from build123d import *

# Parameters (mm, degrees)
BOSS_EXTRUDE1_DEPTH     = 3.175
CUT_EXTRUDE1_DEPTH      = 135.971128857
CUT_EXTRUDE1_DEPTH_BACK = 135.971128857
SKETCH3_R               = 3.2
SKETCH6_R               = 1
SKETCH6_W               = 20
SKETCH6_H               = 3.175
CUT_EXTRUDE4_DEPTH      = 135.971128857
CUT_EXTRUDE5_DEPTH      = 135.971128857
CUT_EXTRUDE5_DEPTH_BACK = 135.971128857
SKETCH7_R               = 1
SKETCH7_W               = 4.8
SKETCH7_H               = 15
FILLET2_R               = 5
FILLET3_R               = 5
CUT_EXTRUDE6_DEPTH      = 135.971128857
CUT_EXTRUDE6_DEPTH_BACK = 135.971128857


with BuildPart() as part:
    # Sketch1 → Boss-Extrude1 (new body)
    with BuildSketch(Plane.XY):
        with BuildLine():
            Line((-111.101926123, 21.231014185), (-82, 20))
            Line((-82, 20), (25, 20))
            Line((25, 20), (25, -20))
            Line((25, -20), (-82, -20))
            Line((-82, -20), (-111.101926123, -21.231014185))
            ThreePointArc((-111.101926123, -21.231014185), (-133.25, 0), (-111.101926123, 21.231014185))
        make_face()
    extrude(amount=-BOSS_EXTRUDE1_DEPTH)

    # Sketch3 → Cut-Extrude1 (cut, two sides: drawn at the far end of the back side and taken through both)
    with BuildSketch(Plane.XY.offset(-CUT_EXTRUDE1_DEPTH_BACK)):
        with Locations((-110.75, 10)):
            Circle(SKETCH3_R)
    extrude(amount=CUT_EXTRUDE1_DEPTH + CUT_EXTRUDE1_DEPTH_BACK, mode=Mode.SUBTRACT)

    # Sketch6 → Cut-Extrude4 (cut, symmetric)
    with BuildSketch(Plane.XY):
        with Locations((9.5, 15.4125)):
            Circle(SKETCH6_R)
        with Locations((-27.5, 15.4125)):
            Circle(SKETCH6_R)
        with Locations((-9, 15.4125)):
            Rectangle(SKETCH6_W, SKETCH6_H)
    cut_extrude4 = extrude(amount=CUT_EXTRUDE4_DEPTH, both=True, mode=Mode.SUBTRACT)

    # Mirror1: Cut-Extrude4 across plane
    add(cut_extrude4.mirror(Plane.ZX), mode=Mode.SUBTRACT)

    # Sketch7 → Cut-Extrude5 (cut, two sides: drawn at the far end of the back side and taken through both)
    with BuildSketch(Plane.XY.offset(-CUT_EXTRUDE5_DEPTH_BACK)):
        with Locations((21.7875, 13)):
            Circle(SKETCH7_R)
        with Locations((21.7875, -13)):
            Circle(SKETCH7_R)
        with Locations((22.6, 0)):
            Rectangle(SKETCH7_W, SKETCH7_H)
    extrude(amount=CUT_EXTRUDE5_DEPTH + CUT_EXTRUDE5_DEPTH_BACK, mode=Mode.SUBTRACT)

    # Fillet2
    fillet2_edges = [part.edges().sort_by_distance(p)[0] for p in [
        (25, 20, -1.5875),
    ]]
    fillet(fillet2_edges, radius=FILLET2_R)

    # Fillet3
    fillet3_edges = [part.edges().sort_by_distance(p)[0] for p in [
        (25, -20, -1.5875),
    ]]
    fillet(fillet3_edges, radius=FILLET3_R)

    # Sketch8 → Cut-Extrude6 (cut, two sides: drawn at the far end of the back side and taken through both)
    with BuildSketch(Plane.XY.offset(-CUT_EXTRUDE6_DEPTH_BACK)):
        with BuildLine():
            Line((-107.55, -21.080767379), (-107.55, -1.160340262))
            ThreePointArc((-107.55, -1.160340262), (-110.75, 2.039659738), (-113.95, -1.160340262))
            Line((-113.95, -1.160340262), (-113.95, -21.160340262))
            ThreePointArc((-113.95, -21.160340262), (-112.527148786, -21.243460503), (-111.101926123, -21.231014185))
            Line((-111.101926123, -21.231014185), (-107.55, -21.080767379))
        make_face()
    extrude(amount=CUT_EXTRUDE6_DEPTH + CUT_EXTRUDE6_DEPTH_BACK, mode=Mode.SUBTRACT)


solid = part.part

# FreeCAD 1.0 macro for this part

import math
import FreeCAD as App
import Part
import Sketcher


def edges_at(feature, points):
    """Names of the edges that pass closest to the given points."""
    edges = feature.Shape.Edges
    near = lambda p: min(range(len(edges)), key=lambda i: edges[i].distToShape(Part.Vertex(*p))[0])
    return sorted({f"Edge{near(p) + 1}" for p in points})


def add_polygon(sketch, points):
    """Adds a closed chain of lines whose ends are joined by coincident constraints."""
    first, n = sketch.GeometryCount, len(points)
    for a, b in zip(points, points[1:] + points[:1]):
        sketch.addGeometry(Part.LineSegment(App.Vector(*a, 0), App.Vector(*b, 0)), False)
    for i in range(n):
        sketch.addConstraint(Sketcher.Constraint("Coincident", first + i, 2, first + (i + 1) % n, 1))

doc = App.newDocument("Part")
params = doc.addObject("Spreadsheet::Sheet", "Params")
for row, (alias, value) in enumerate([
    ("sketch1_width", "107 mm"),
    ("sketch1_height", "40 mm"),
    ("sketch1_radius", "21.25 mm"),
    ("pad1_length", "3.175 mm"),
    ("sketch2_diameter", "6.4 mm"),
    ("sketch3_diameter", "2 mm"),
    ("sketch3_width", "20 mm"),
    ("pocket2_length", "271.942258 mm"),
    ("sketch4_diameter", "2 mm"),
    ("sketch4_height", "15 mm"),
    ("sketch4_width", "4.8 mm"),
    ("fillet_radius", "5 mm"),
    ("fillet2_radius", "5 mm"),
    ("sketch5_radius", "3.2 mm"),
    ("sketch5_height", "20 mm"),
    ("sketch5_radius2", "21.25 mm"),
], start=1):
    params.set(f"A{row}", alias)
    params.set(f"B{row}", "=" + value)
    params.setAlias(f"B{row}", alias)

body = doc.addObject("PartDesign::Body", "Body")

sketch1 = doc.addObject("Sketcher::SketchObject", "Sketch")
body.addObject(sketch1)
sketch1.AttachmentSupport = (doc.XY_Plane, [""])
sketch1.MapMode = "FlatFace"
sketch1.addGeometry([
    Part.LineSegment(App.Vector(-82, 20, 0), App.Vector(-111, 21, 0)),
    Part.ArcOfCircle(Part.Circle(App.Vector(-112, 0, 0), App.Vector(0, 0, 1), 21), math.radians(88), math.radians(272)),
    Part.LineSegment(App.Vector(-111, -21, 0), App.Vector(-82, -20, 0)),
    Part.LineSegment(App.Vector(-82, -20, 0), App.Vector(25, -20, 0)),
    Part.LineSegment(App.Vector(25, -20, 0), App.Vector(25, 20, 0)),
    Part.LineSegment(App.Vector(25, 20, 0), App.Vector(-82, 20, 0)),
], False)
sketch1.addConstraint([
    Sketcher.Constraint("Tangent", 0, 2, 1, 1),
    Sketcher.Constraint("Tangent", 1, 2, 2, 1),
    Sketcher.Constraint("Coincident", 2, 2, 3, 1),
    Sketcher.Constraint("Coincident", 3, 2, 4, 1),
    Sketcher.Constraint("Coincident", 4, 2, 5, 1),
    Sketcher.Constraint("Coincident", 5, 2, 0, 1),
    Sketcher.Constraint("Horizontal", 3),
    Sketcher.Constraint("Vertical", 4),
    Sketcher.Constraint("Horizontal", 5),
    Sketcher.Constraint("Symmetric", 0, 2, 1, 2, -1),
    Sketcher.Constraint("Vertical", 2, 2, 5, 2),
    Sketcher.Constraint("DistanceX", 3, 1, 3, 2, 107.0),
    Sketcher.Constraint("DistanceY", 4, 1, 4, 2, 40.0),
    Sketcher.Constraint("Radius", 1, 21.25),
    Sketcher.Constraint("DistanceX", 1, 3, -1, 1, 112.0),
    Sketcher.Constraint("DistanceX", 2, 2, -1, 1, 82.0),
])
sketch1.setExpression("Constraints[11]", "Params.sketch1_width")
sketch1.setExpression("Constraints[12]", "Params.sketch1_height")
sketch1.setExpression("Constraints[13]", "Params.sketch1_radius")
pad1 = doc.addObject("PartDesign::Pad", "Pad")
body.addObject(pad1)
pad1.Profile = sketch1
pad1.setExpression("Length", "Params.pad1_length")
pad1.Reversed = True

sketch2 = doc.addObject("Sketcher::SketchObject", "Sketch001")
body.addObject(sketch2)
sketch2.AttachmentSupport = (doc.XY_Plane, [""])
sketch2.MapMode = "FlatFace"
sketch2.addGeometry(Part.Circle(App.Vector(-110.8, 10, 0), App.Vector(0, 0, 1), 3.2), False)
sketch2.addConstraint([
    Sketcher.Constraint("Diameter", 0, 6.4),
    Sketcher.Constraint("DistanceY", -1, 1, 0, 3, 10.0),
    Sketcher.Constraint("DistanceX", 0, 3, -1, 1, 110.75),
])
sketch2.setExpression("Constraints[0]", "Params.sketch2_diameter")
pocket1 = doc.addObject("PartDesign::Pocket", "Pocket")
body.addObject(pocket1)
pocket1.Profile = sketch2
pocket1.Type = "ThroughAll"
pocket1.Midplane = True

sketch3 = doc.addObject("Sketcher::SketchObject", "Sketch002")
body.addObject(sketch3)
sketch3.AttachmentSupport = (doc.XY_Plane, [""])
sketch3.MapMode = "FlatFace"
sketch3.addGeometry(Part.Circle(App.Vector(9.5, 15.4, 0), App.Vector(0, 0, 1), 1), False)
sketch3.addGeometry(Part.Circle(App.Vector(-27.5, 15.4, 0), App.Vector(0, 0, 1), 1), False)
add_polygon(sketch3, [(-19, 17), (-19, 13.8), (1, 13.8), (1, 17)])
sketch3.addConstraint([
    Sketcher.Constraint("Vertical", 2),
    Sketcher.Constraint("Horizontal", 3),
    Sketcher.Constraint("Vertical", 4),
    Sketcher.Constraint("Horizontal", 5),
    Sketcher.Constraint("Equal", 0, 1),
    Sketcher.Constraint("Horizontal", 0, 3, 1, 3),
    Sketcher.Constraint("Diameter", 0, 2.0),
    Sketcher.Constraint("DistanceX", 3, 1, 3, 2, 20.0),
    Sketcher.Constraint("DistanceX", 2, 2, -1, 1, 19.0),
    Sketcher.Constraint("DistanceY", -1, 1, 4, 2, 17.0),
    Sketcher.Constraint("DistanceX", 1, 3, 0, 3, 37.0),
    Sketcher.Constraint("DistanceX", -1, 1, 0, 3, 9.5),
    Sketcher.Constraint("DistanceY", 2, 2, 2, 1, 3.175),
    Sketcher.Constraint("DistanceY", -1, 1, 0, 3, 15.4125),
])
sketch3.setExpression("Constraints[10]", "Params.sketch3_diameter")
sketch3.setExpression("Constraints[11]", "Params.sketch3_width")
pocket2 = doc.addObject("PartDesign::Pocket", "Pocket001")
body.addObject(pocket2)
pocket2.Profile = sketch3
pocket2.setExpression("Length", "Params.pocket2_length")
pocket2.Midplane = True
doc.recompute()

mirrored = doc.addObject("PartDesign::Mirrored", "Mirrored")
body.addObject(mirrored)
mirrored.Originals = [pocket2]
mirrored.MirrorPlane = (doc.XZ_Plane, [""])
body.Tip = mirrored

sketch4 = doc.addObject("Sketcher::SketchObject", "Sketch003")
body.addObject(sketch4)
sketch4.AttachmentSupport = (doc.XY_Plane, [""])
sketch4.MapMode = "FlatFace"
sketch4.addGeometry(Part.Circle(App.Vector(21.8, 13, 0), App.Vector(0, 0, 1), 1), False)
sketch4.addGeometry(Part.Circle(App.Vector(21.8, -13, 0), App.Vector(0, 0, 1), 1), False)
add_polygon(sketch4, [(20.2, 7.5), (20.2, -7.5), (25, -7.5), (25, 7.5)])
sketch4.addConstraint([
    Sketcher.Constraint("Vertical", 2),
    Sketcher.Constraint("Horizontal", 3),
    Sketcher.Constraint("Vertical", 4),
    Sketcher.Constraint("Horizontal", 5),
    Sketcher.Constraint("Equal", 0, 1),
    Sketcher.Constraint("Symmetric", 0, 3, 1, 3, -1),
    Sketcher.Constraint("Diameter", 0, 2.0),
    Sketcher.Constraint("DistanceY", 2, 2, 2, 1, 15.0),
    Sketcher.Constraint("DistanceX", 3, 1, 3, 2, 4.8),
    Sketcher.Constraint("DistanceY", -1, 1, 0, 3, 13.0),
    Sketcher.Constraint("DistanceX", -1, 1, 3, 2, 25.0),
    Sketcher.Constraint("DistanceY", 2, 2, -1, 1, 7.5),
    Sketcher.Constraint("DistanceX", -1, 1, 0, 3, 21.7875),
])
sketch4.setExpression("Constraints[10]", "Params.sketch4_diameter")
sketch4.setExpression("Constraints[11]", "Params.sketch4_height")
sketch4.setExpression("Constraints[12]", "Params.sketch4_width")
pocket3 = doc.addObject("PartDesign::Pocket", "Pocket002")
body.addObject(pocket3)
pocket3.Profile = sketch4
pocket3.Type = "ThroughAll"
pocket3.Midplane = True
doc.recompute()

fillet = doc.addObject("PartDesign::Fillet", "Fillet")
body.addObject(fillet)
fillet.Base = (pocket3, edges_at(pocket3, [(25, 20, -1.587)]))
fillet.setExpression("Radius", "Params.fillet_radius")
doc.recompute()

fillet2 = doc.addObject("PartDesign::Fillet", "Fillet001")
body.addObject(fillet2)
fillet2.Base = (fillet, edges_at(fillet, [(25, -20, -1.587)]))
fillet2.setExpression("Radius", "Params.fillet2_radius")

sketch5 = doc.addObject("Sketcher::SketchObject", "Sketch004")
body.addObject(sketch5)
sketch5.AttachmentSupport = (doc.XY_Plane, [""])
sketch5.MapMode = "FlatFace"
sketch5.addGeometry([
    Part.LineSegment(App.Vector(-107.5, -21.1, 0), App.Vector(-107.5, -1.2, 0)),
    Part.ArcOfCircle(Part.Circle(App.Vector(-110.8, -1.2, 0), App.Vector(0, 0, 1), 3.2), math.radians(0), math.radians(180)),
    Part.LineSegment(App.Vector(-114, -1.2, 0), App.Vector(-114, -21.2, 0)),
    Part.ArcOfCircle(Part.Circle(App.Vector(-112, 0, 0), App.Vector(0, 0, 1), 21.3), math.radians(-95.27), math.radians(-87.58)),
    Part.LineSegment(App.Vector(-111.1, -21.2, 0), App.Vector(-107.5, -21.1, 0)),
], False)
sketch5.addConstraint([
    Sketcher.Constraint("Tangent", 0, 2, 1, 1),
    Sketcher.Constraint("Tangent", 1, 2, 2, 1),
    Sketcher.Constraint("Coincident", 2, 2, 3, 1),
    Sketcher.Constraint("Tangent", 3, 2, 4, 1),
    Sketcher.Constraint("Coincident", 4, 2, 0, 1),
    Sketcher.Constraint("Vertical", 0),
    Sketcher.Constraint("Vertical", 2),
    Sketcher.Constraint("PointOnObject", 3, 3, -1),
    Sketcher.Constraint("Radius", 1, 3.2),
    Sketcher.Constraint("DistanceY", 2, 2, 2, 1, 20.0),
    Sketcher.Constraint("Radius", 3, 21.25),
    Sketcher.Constraint("DistanceX", 3, 3, -1, 1, 112.0),
    Sketcher.Constraint("DistanceX", 1, 3, -1, 1, 110.75),
    Sketcher.Constraint("DistanceY", 0, 1, 0, 2, 19.920427),
])
sketch5.setExpression("Constraints[8]", "Params.sketch5_radius")
sketch5.setExpression("Constraints[9]", "Params.sketch5_height")
sketch5.setExpression("Constraints[10]", "Params.sketch5_radius2")
pocket4 = doc.addObject("PartDesign::Pocket", "Pocket003")
body.addObject(pocket4)
pocket4.Profile = sketch5
pocket4.Type = "ThroughAll"
pocket4.Midplane = True

doc.recompute()
